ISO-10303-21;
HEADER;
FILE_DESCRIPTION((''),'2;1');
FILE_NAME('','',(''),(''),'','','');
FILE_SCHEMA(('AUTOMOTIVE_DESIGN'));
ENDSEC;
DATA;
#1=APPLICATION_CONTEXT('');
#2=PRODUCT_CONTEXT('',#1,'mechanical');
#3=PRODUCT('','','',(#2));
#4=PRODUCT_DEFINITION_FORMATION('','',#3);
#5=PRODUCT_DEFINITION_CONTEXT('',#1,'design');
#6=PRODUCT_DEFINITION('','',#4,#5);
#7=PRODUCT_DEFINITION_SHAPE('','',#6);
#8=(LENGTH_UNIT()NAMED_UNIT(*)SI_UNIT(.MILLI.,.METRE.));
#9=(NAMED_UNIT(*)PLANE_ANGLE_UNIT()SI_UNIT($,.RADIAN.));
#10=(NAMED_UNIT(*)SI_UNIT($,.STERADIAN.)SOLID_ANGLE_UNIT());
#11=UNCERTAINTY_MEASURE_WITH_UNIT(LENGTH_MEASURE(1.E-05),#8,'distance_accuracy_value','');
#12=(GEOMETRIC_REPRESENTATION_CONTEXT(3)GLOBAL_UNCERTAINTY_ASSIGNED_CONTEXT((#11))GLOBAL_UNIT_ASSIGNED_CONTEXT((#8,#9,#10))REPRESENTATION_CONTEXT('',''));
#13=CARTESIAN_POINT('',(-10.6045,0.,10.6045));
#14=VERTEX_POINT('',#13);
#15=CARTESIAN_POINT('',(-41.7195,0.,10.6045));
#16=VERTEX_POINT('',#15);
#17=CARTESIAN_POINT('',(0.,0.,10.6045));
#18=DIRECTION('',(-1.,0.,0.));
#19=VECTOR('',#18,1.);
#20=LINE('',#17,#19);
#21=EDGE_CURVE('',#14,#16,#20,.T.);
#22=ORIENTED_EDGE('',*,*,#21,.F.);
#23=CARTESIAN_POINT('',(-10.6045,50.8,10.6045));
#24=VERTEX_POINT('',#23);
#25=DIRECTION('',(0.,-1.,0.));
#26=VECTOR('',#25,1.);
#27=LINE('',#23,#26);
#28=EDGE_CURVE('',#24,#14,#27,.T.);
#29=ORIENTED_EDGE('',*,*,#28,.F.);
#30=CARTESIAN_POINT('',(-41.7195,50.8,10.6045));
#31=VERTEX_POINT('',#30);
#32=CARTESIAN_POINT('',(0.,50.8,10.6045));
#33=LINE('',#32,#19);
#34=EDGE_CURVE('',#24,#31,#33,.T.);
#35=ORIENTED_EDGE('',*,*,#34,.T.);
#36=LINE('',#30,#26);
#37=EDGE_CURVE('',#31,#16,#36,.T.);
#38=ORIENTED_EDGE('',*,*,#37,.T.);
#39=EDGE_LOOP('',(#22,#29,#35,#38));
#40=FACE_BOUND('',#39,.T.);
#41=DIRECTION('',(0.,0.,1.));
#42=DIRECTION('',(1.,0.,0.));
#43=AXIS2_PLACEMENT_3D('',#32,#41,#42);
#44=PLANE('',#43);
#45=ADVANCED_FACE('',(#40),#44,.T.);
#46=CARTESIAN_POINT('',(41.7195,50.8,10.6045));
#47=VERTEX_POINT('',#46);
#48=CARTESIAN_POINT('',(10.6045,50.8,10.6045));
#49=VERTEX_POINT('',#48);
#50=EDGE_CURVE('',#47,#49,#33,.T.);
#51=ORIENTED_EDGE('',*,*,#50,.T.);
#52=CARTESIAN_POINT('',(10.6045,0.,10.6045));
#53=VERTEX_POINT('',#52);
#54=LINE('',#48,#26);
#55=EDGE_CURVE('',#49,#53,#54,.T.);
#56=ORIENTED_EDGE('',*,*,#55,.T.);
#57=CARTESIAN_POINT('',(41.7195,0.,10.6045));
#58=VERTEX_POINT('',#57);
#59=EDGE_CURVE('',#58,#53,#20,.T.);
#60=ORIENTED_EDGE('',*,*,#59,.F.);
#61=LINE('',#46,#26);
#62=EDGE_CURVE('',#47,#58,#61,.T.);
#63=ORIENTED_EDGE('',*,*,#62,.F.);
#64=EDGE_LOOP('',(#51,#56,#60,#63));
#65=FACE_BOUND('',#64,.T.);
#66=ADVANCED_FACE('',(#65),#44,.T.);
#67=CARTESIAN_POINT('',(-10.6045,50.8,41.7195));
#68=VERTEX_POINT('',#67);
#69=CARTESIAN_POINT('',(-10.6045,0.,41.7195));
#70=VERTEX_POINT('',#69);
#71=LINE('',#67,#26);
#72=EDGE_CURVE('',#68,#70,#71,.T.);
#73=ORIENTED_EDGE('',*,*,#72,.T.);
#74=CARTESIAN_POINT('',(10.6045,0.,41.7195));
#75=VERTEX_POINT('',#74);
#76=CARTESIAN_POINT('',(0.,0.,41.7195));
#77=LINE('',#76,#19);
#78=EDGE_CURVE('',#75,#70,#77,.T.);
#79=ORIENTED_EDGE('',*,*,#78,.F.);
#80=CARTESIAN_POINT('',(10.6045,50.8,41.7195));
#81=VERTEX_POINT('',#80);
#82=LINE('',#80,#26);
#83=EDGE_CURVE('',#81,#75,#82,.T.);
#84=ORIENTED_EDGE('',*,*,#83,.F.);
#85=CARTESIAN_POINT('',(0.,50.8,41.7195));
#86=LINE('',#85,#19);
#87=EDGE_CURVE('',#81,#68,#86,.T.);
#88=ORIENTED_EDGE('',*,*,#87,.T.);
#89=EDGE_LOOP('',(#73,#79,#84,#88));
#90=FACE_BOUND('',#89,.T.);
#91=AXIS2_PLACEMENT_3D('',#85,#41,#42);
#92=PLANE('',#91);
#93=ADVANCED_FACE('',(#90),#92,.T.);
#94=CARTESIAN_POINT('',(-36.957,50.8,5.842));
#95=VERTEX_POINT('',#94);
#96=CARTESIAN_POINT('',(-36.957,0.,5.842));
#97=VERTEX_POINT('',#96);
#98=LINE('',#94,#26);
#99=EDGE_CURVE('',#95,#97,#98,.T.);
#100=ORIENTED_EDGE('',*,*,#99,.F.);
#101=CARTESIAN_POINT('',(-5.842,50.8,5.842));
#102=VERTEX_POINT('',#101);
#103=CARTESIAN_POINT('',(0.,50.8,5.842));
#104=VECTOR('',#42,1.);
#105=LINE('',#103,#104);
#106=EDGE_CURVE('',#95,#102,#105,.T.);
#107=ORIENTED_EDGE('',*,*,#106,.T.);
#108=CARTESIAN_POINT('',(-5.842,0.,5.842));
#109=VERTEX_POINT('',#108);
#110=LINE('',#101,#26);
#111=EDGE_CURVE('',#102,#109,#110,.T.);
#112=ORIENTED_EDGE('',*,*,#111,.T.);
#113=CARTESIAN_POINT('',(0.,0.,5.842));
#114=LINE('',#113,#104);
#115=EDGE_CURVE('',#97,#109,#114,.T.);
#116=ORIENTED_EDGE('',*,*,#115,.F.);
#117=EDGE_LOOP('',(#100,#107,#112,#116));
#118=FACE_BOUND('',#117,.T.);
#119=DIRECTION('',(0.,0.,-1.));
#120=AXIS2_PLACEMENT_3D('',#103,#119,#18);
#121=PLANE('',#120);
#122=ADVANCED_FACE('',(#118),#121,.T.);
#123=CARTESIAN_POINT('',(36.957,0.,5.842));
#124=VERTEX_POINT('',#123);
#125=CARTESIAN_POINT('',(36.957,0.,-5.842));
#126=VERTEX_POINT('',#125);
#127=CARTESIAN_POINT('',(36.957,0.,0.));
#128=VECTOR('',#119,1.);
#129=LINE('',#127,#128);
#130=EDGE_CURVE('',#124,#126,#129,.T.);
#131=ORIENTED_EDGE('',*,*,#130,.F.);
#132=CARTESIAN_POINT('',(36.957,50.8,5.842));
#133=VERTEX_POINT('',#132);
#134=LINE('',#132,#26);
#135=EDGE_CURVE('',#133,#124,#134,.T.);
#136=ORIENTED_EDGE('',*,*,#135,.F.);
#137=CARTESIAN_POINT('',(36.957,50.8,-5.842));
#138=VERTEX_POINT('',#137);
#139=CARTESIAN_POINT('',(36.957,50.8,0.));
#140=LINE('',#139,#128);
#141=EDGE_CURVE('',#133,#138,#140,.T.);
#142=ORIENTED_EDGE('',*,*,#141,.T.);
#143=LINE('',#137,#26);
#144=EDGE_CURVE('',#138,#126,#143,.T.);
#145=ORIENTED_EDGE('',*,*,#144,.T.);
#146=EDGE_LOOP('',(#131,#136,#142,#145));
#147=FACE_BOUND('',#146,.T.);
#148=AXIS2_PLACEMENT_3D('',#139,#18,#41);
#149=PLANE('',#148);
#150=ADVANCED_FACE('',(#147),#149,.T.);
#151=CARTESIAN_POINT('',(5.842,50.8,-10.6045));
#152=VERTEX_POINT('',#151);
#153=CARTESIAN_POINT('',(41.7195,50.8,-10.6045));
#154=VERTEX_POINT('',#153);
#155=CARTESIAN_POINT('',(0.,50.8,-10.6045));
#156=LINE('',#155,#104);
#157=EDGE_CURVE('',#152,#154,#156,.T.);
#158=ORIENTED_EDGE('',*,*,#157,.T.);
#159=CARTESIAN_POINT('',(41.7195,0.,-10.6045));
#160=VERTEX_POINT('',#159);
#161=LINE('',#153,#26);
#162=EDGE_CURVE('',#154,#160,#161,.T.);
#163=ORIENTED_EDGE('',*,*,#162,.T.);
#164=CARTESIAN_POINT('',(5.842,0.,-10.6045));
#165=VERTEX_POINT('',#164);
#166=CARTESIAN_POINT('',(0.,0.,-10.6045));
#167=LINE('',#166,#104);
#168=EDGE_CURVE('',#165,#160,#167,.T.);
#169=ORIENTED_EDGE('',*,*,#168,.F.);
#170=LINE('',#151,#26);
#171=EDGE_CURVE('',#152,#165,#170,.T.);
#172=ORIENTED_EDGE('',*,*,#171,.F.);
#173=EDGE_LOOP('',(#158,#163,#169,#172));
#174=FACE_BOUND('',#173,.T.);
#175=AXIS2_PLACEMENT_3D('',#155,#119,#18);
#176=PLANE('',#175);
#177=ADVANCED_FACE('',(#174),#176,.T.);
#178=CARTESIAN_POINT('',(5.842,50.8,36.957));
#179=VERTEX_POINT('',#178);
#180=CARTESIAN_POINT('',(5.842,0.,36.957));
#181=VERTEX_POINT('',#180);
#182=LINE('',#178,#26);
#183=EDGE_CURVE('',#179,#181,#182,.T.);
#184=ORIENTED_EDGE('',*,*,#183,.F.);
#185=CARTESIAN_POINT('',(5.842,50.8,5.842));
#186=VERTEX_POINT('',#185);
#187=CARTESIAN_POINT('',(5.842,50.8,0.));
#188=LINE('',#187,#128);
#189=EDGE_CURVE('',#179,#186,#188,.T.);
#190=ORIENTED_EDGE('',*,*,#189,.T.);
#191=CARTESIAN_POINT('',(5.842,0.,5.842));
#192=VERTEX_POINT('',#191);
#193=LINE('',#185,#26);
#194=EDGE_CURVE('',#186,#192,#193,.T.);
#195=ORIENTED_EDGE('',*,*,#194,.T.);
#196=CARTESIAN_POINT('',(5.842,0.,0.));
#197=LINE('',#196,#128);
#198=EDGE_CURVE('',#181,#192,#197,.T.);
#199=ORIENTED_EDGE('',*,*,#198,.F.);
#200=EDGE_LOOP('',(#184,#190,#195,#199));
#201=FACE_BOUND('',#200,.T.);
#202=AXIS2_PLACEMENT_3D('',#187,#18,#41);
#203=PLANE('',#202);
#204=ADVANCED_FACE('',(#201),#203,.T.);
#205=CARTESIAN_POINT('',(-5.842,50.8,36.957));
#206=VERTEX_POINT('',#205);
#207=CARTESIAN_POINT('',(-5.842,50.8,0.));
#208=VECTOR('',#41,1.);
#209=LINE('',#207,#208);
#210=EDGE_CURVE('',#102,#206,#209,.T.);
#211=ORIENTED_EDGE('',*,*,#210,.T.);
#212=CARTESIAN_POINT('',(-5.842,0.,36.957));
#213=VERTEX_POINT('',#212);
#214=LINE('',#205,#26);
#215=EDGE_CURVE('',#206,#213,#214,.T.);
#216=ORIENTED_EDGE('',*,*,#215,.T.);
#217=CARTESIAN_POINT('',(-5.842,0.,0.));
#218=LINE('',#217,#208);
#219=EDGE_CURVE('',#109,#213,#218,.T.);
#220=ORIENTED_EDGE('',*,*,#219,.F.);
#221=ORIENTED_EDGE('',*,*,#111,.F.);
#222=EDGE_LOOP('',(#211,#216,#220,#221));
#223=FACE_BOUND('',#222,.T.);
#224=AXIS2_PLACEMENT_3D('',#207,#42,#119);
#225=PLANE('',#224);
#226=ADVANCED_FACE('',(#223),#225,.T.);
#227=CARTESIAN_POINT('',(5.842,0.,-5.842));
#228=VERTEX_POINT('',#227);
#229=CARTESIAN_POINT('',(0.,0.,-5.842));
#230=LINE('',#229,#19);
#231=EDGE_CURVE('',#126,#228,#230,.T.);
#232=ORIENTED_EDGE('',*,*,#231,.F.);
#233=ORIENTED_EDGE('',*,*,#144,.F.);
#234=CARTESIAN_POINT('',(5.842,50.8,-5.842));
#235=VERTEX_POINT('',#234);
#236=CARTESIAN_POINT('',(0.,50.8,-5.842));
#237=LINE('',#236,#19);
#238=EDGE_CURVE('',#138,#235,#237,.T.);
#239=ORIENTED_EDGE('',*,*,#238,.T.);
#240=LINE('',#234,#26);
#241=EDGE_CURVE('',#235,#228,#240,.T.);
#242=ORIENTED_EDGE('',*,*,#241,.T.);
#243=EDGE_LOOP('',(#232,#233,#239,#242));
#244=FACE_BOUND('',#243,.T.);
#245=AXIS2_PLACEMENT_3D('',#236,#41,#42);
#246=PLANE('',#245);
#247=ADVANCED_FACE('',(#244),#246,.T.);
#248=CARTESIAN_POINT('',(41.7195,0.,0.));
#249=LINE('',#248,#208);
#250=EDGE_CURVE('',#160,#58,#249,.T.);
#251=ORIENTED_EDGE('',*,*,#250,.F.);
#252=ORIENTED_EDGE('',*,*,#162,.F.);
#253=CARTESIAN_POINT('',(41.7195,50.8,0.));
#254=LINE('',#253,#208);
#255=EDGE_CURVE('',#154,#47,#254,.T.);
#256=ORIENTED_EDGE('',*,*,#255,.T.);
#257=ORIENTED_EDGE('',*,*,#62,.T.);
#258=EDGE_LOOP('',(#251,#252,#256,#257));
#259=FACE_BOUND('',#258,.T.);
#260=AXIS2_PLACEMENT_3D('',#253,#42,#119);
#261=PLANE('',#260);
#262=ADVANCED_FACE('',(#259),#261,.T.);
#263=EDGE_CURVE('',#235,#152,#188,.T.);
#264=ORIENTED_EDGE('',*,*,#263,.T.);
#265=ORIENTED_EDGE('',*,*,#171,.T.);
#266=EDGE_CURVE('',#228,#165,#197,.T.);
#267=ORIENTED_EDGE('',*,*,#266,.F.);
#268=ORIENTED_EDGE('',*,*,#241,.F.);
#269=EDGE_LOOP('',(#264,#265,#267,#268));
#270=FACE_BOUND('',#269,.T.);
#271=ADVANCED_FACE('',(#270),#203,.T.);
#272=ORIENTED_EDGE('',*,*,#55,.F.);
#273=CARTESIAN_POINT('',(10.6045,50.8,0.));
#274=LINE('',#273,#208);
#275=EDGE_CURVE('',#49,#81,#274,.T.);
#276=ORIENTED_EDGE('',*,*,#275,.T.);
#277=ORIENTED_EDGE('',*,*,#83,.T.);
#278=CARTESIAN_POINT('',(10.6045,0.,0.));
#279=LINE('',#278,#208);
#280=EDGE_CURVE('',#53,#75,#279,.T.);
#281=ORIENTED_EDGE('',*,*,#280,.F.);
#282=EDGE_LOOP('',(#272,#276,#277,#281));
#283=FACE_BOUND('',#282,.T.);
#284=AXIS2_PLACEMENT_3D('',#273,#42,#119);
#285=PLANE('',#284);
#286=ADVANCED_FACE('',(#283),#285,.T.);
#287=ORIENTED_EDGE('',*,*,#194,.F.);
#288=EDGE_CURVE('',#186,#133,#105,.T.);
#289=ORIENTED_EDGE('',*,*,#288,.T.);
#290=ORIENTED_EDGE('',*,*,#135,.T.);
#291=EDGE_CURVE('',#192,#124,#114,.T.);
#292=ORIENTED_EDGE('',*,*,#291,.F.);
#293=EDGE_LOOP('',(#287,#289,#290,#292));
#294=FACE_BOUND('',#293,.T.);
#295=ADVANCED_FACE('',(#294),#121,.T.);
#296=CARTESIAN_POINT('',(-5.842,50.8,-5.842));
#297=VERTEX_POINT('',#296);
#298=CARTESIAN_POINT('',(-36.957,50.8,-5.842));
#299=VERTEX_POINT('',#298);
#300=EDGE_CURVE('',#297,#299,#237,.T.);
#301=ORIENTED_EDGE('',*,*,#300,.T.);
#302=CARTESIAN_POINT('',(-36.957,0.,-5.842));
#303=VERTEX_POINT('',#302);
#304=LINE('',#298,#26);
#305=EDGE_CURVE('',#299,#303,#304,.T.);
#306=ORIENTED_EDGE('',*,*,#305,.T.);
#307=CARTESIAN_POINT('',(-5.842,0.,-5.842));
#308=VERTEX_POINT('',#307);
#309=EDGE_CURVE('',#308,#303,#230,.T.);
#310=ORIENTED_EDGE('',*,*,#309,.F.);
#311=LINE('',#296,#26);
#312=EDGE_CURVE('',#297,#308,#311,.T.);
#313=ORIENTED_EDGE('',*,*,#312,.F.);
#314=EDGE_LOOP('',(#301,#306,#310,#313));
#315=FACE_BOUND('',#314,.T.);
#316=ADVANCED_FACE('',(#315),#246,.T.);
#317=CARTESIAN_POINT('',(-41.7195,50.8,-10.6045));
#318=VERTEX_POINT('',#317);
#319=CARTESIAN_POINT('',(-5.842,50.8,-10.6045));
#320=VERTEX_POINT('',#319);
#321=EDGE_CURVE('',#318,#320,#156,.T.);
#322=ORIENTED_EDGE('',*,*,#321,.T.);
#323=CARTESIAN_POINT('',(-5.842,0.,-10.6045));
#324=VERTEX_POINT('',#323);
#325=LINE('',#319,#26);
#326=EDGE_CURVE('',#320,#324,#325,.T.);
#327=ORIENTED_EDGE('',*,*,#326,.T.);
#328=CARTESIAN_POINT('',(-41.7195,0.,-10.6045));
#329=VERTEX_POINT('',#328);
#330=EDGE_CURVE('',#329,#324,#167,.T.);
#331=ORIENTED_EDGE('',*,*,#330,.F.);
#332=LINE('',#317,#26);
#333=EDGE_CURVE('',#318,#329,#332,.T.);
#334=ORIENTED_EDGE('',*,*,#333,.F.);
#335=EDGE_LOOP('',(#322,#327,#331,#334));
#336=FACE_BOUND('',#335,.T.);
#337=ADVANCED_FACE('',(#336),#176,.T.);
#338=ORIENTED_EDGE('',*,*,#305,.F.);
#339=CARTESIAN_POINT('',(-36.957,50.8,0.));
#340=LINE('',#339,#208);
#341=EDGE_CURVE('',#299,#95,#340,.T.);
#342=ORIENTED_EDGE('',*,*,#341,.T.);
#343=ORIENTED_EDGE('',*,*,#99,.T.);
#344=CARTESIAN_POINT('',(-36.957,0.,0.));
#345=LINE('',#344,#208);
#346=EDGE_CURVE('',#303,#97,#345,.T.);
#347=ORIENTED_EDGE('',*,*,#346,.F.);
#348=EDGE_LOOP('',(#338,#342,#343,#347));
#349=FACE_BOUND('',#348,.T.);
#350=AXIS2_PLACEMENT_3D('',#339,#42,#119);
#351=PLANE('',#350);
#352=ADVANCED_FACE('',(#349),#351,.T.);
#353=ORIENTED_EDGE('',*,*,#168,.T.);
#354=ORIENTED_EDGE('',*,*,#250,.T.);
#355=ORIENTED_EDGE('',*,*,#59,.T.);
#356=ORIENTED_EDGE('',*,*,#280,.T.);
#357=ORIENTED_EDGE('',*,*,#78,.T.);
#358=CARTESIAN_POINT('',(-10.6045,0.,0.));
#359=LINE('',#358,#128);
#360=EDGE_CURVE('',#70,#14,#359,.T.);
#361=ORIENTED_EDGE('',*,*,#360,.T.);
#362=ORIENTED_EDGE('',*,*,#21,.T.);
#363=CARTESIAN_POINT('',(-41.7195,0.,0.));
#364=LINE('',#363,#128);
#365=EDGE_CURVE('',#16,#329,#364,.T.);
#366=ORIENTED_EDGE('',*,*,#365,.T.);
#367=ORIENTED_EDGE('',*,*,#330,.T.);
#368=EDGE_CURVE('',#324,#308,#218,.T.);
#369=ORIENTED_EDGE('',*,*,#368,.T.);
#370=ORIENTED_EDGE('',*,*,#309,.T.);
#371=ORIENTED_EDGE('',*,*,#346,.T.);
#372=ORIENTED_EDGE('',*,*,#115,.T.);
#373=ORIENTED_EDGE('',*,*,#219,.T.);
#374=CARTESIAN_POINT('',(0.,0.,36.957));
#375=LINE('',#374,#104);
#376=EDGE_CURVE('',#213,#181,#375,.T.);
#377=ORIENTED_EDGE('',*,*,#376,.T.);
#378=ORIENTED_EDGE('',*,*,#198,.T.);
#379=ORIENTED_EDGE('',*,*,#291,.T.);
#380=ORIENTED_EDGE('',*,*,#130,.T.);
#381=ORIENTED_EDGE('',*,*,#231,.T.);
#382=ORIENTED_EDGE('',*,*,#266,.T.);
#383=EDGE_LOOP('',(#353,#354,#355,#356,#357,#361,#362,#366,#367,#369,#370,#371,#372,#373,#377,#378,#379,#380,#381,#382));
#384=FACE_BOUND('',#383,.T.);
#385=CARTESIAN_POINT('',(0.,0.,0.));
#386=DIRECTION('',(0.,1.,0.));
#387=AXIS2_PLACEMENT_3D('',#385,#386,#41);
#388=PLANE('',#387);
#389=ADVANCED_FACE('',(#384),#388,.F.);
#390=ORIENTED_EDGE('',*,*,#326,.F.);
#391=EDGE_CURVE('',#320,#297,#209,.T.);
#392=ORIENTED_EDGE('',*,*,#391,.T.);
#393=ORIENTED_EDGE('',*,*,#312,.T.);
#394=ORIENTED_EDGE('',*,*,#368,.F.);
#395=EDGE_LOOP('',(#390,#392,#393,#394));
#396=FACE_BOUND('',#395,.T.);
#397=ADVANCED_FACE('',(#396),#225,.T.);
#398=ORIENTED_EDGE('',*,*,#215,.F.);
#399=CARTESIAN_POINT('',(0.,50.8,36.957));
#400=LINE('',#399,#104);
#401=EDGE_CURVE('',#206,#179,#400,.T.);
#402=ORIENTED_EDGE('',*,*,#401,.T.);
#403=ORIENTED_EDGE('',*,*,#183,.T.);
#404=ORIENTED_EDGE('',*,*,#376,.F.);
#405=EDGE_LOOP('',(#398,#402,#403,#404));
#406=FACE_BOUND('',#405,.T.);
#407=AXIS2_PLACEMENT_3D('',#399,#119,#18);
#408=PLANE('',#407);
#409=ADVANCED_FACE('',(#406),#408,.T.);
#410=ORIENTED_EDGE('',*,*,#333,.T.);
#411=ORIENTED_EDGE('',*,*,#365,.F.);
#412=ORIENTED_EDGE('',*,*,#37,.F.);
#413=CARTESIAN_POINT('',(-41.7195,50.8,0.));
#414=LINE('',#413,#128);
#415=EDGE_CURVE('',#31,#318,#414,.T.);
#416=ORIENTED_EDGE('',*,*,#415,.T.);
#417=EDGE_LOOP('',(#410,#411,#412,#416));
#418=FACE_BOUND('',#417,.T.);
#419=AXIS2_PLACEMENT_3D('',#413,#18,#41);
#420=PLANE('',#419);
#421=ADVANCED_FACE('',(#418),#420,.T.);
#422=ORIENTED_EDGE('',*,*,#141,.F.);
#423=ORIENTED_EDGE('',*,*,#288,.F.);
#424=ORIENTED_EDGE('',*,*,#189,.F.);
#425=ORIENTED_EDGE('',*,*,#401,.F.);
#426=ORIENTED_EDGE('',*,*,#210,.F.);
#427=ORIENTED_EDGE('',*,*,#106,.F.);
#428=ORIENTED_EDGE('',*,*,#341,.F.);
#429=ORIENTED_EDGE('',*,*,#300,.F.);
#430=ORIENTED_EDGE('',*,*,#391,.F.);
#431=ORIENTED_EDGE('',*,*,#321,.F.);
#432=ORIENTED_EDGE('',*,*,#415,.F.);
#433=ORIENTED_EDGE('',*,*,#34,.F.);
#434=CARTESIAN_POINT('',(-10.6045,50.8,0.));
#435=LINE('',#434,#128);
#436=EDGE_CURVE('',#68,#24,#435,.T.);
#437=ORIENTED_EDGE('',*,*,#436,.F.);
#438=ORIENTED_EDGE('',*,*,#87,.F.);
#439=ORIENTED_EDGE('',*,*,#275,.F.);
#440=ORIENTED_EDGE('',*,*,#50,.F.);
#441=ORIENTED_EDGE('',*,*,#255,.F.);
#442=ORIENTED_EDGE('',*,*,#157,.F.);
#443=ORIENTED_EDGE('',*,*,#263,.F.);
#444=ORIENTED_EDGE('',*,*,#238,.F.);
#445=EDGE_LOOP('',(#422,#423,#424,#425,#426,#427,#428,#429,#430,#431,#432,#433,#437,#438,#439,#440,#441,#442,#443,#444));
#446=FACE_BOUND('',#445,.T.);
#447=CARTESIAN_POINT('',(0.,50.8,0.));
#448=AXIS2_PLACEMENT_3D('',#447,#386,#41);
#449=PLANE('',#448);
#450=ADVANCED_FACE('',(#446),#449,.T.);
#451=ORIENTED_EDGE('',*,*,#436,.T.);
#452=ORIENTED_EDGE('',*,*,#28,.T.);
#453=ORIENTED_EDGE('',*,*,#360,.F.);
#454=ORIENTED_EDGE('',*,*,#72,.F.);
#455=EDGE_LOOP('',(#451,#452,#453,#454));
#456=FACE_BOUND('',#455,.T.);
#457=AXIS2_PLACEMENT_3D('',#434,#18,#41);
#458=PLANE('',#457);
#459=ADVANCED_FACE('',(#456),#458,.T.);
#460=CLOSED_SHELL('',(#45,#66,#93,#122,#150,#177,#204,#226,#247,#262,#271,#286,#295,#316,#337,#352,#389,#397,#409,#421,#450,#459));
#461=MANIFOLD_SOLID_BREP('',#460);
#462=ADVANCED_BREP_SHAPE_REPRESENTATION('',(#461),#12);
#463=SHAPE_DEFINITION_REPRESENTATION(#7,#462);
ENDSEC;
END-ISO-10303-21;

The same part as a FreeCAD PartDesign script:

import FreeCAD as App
import Part
import Sketcher

V = App.Vector
Q = App.Units.Quantity

doc = App.newDocument("Part")
body = doc.addObject("PartDesign::Body", "Body")

# Sketch on XZ plane
sketch1 = body.newObject("Sketcher::SketchObject", "Sketch")
sketch1.AttachmentSupport = (doc.getObject("XZ_Plane"), [""])
sketch1.MapMode = "FlatFace"
sketch1.addGeometry([
    Part.LineSegment(V(-41.7, -10.6, 0), V(-41.7, 10.6, 0)),  # 0
    Part.LineSegment(V(-41.7, 10.6, 0), V(-10.6, 10.6, 0)),  # 1
    Part.LineSegment(V(-10.6, 10.6, 0), V(-10.6, 41.7, 0)),  # 2
    Part.LineSegment(V(-10.6, 41.7, 0), V(10.6, 41.7, 0)),  # 3
    Part.LineSegment(V(10.6, 41.7, 0), V(10.6, 10.6, 0)),  # 4
    Part.LineSegment(V(10.6, 10.6, 0), V(41.7, 10.6, 0)),  # 5
    Part.LineSegment(V(41.7, 10.6, 0), V(41.7, -10.6, 0)),  # 6
    Part.LineSegment(V(41.7, -10.6, 0), V(5.8, -10.6, 0)),  # 7
    Part.LineSegment(V(5.8, -10.6, 0), V(5.8, -5.8, 0)),  # 8
    Part.LineSegment(V(5.8, -5.8, 0), V(37, -5.8, 0)),  # 9
    Part.LineSegment(V(37, -5.8, 0), V(37, 5.8, 0)),  # 10
    Part.LineSegment(V(37, 5.8, 0), V(5.8, 5.8, 0)),  # 11
    Part.LineSegment(V(5.8, 5.8, 0), V(5.8, 37, 0)),  # 12
    Part.LineSegment(V(5.8, 37, 0), V(-5.8, 37, 0)),  # 13
    Part.LineSegment(V(-5.8, 37, 0), V(-5.8, 5.8, 0)),  # 14
    Part.LineSegment(V(-5.8, 5.8, 0), V(-37, 5.8, 0)),  # 15
    Part.LineSegment(V(-37, 5.8, 0), V(-37, -5.8, 0)),  # 16
    Part.LineSegment(V(-37, -5.8, 0), V(-5.8, -5.8, 0)),  # 17
    Part.LineSegment(V(-5.8, -5.8, 0), V(-5.8, -10.6, 0)),  # 18
    Part.LineSegment(V(-5.8, -10.6, 0), V(-41.7, -10.6, 0)),  # 19
], False)
sketch1.addConstraint([
    Sketcher.Constraint("Coincident", 0, 2, 1, 1),
    Sketcher.Constraint("Coincident", 1, 2, 2, 1),
    Sketcher.Constraint("Coincident", 2, 2, 3, 1),
    Sketcher.Constraint("Coincident", 3, 2, 4, 1),
    Sketcher.Constraint("Coincident", 4, 2, 5, 1),
    Sketcher.Constraint("Coincident", 5, 2, 6, 1),
    Sketcher.Constraint("Coincident", 6, 2, 7, 1),
    Sketcher.Constraint("Coincident", 7, 2, 8, 1),
    Sketcher.Constraint("Coincident", 8, 2, 9, 1),
    Sketcher.Constraint("Coincident", 9, 2, 10, 1),
    Sketcher.Constraint("Coincident", 10, 2, 11, 1),
    Sketcher.Constraint("Coincident", 11, 2, 12, 1),
    Sketcher.Constraint("Coincident", 12, 2, 13, 1),
    Sketcher.Constraint("Coincident", 13, 2, 14, 1),
    Sketcher.Constraint("Coincident", 14, 2, 15, 1),
    Sketcher.Constraint("Coincident", 15, 2, 16, 1),
    Sketcher.Constraint("Coincident", 16, 2, 17, 1),
    Sketcher.Constraint("Coincident", 17, 2, 18, 1),
    Sketcher.Constraint("Coincident", 18, 2, 19, 1),
    Sketcher.Constraint("Coincident", 19, 2, 0, 1),
    Sketcher.Constraint("Vertical", 0),
    Sketcher.Constraint("Horizontal", 1),
    Sketcher.Constraint("Vertical", 2),
    Sketcher.Constraint("Horizontal", 3),
    Sketcher.Constraint("Vertical", 4),
    Sketcher.Constraint("Horizontal", 5),
    Sketcher.Constraint("Vertical", 6),
    Sketcher.Constraint("Horizontal", 7),
    Sketcher.Constraint("Vertical", 8),
    Sketcher.Constraint("Horizontal", 9),
    Sketcher.Constraint("Vertical", 10),
    Sketcher.Constraint("Horizontal", 11),
    Sketcher.Constraint("Vertical", 12),
    Sketcher.Constraint("Horizontal", 13),
    Sketcher.Constraint("Vertical", 14),
    Sketcher.Constraint("Horizontal", 15),
    Sketcher.Constraint("Vertical", 16),
    Sketcher.Constraint("Horizontal", 17),
    Sketcher.Constraint("Vertical", 18),
    Sketcher.Constraint("Horizontal", 19),
    Sketcher.Constraint("Symmetric", 0, 2, 6, 2, -1, 1),
    Sketcher.Constraint("Symmetric", 8, 2, 14, 2, -1, 1),
    Sketcher.Constraint("Symmetric", 10, 2, 16, 2, -1, 1),
    Sketcher.Constraint("Symmetric", 1, 2, 4, 2, -2),
    Sketcher.Constraint("Symmetric", 11, 2, 14, 2, -2),
    Sketcher.Constraint("Symmetric", 7, 2, 18, 2, -2),
    Sketcher.Constraint("Equal", 5, 9),
    Sketcher.Constraint("Equal", 3, 0),
    Sketcher.Constraint("Equal", 17, 2),
    Sketcher.Constraint("Equal", 13, 10),
    Sketcher.Constraint("Equal", 4, 12),
    Sketcher.Constraint("DistanceX", 13, 2, 13, 1, Q("0.46 in")),
    Sketcher.Constraint("DistanceX", 1, 1, 1, 2, Q("1.225 in")),
    Sketcher.Constraint("DistanceX", 3, 1, 3, 2, Q("0.835 in")),
])
pad1 = body.newObject("PartDesign::Pad", "Pad")
pad1.Profile = sketch1
pad1.Length = Q("2 in")
pad1.Reversed = True

doc.recompute()
